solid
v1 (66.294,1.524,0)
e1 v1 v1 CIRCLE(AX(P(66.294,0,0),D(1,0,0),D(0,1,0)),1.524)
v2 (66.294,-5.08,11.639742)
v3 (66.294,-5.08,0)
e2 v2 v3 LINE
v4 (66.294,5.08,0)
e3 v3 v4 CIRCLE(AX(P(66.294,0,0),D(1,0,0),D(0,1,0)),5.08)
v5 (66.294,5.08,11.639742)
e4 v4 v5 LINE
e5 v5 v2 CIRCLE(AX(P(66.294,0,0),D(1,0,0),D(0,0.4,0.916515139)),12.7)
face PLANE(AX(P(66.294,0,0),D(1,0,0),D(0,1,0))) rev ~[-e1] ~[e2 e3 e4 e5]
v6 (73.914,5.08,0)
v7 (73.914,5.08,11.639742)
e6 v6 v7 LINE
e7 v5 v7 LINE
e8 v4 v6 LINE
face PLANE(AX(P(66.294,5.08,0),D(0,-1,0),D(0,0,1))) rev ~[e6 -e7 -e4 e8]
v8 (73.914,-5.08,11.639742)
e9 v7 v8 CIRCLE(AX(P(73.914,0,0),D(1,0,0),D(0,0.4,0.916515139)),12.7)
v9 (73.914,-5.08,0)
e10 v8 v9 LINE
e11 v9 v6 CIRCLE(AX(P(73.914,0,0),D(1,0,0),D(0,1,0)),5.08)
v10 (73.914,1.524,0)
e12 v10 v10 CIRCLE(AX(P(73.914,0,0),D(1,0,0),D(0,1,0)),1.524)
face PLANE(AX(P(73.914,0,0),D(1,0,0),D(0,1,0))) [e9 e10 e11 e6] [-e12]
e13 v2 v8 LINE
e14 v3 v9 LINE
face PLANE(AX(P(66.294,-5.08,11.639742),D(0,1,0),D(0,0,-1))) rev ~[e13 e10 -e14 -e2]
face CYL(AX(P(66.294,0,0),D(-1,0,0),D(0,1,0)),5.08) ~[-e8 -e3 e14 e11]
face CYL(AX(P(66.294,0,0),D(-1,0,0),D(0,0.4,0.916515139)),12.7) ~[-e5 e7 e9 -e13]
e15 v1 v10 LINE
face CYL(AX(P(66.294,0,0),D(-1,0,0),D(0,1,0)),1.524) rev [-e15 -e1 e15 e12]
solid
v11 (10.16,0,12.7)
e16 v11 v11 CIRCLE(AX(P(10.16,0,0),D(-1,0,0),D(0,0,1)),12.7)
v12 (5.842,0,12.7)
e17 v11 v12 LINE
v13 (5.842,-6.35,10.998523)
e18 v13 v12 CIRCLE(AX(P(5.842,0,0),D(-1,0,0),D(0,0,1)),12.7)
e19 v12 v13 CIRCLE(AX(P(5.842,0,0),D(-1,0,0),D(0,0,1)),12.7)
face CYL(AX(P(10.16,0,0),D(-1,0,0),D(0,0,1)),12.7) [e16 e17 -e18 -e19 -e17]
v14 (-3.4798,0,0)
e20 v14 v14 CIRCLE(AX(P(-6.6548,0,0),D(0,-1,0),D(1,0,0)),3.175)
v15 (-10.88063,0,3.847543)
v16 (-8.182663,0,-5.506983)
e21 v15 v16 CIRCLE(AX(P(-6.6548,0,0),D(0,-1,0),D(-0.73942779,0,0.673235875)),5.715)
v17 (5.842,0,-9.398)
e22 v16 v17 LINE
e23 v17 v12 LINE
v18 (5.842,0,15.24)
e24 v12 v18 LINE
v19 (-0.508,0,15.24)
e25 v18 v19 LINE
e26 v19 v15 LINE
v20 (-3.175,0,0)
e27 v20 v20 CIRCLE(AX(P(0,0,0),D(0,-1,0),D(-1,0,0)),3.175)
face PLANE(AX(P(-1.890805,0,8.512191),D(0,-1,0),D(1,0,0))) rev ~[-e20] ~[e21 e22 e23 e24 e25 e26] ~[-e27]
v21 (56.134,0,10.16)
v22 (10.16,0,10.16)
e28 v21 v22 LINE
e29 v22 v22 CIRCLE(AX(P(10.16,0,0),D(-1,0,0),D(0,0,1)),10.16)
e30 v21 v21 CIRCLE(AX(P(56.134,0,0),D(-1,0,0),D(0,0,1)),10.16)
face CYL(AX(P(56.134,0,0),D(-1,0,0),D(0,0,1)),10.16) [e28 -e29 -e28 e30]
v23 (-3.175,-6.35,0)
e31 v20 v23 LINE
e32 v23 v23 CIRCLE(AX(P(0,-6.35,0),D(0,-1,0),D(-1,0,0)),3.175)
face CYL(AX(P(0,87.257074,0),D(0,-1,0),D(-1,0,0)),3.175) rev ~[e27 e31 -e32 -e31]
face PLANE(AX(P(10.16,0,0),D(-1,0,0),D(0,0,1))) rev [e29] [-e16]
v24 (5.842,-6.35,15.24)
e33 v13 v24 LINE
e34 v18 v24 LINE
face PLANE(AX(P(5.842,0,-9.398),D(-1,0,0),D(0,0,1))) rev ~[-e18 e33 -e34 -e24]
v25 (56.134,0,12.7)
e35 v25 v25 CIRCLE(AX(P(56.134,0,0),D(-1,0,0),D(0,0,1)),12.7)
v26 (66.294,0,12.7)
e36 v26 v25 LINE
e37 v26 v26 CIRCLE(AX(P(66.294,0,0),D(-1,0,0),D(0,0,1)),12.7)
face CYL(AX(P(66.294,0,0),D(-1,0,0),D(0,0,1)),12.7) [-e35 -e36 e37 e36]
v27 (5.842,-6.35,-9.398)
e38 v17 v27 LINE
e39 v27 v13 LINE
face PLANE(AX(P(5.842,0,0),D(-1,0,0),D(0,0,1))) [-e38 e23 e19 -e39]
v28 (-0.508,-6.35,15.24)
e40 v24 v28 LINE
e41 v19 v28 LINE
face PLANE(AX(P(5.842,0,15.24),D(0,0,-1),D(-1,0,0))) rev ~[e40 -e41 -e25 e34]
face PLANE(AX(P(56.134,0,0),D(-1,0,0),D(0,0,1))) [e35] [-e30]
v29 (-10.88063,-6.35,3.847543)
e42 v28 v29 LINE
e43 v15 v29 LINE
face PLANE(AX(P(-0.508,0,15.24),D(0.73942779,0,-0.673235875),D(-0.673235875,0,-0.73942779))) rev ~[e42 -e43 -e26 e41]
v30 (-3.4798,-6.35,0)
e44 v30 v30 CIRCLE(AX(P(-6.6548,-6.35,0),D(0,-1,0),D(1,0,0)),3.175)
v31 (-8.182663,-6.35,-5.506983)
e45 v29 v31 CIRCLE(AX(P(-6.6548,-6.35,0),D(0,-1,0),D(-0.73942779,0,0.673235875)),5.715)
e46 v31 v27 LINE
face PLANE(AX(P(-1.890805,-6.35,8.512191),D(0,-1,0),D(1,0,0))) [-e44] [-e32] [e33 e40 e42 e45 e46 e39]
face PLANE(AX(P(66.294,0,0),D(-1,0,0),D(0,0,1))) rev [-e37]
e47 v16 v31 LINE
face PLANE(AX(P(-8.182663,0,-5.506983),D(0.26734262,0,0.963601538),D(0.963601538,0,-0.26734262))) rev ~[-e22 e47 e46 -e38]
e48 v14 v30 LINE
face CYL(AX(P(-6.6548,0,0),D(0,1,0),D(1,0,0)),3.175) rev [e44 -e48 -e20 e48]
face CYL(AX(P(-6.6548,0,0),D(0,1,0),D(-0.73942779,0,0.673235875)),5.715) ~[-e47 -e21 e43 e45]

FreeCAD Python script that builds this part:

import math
import FreeCAD as App
import Part
import Sketcher
Q = App.Units.Quantity


def add_polygon(sketch, points):
    """Adds a closed chain of lines whose ends are joined by coincident constraints."""
    first, n = sketch.GeometryCount, len(points)
    for a, b in zip(points, points[1:] + points[:1]):
        sketch.addGeometry(Part.LineSegment(App.Vector(*a, 0), App.Vector(*b, 0)), False)
    for i in range(n):
        sketch.addConstraint(Sketcher.Constraint("Coincident", first + i, 2, first + (i + 1) % n, 1))

doc = App.newDocument("Part")
params = doc.addObject("Spreadsheet::Sheet", "Params")
for row, (alias, value) in enumerate([
    ("sketch1_width", "0.4 in"),
    ("sketch1_height", "0.5 in"),
    ("sketch1_height2", "0.1 in"),
    ("sketch1_width2", "2.38 in"),
    ("sketch1_width3", "1.81 in"),
    ("revolution_angle", "360 deg"),
    ("sketch2_diameter", "0.25 in"),
    ("sketch2_radius", "0.225 in"),
    ("sketch2_width", "0.25 in"),
    ("sketch2_height", "0.97 in"),
    ("pad1_length", "0.25 in"),
    ("sketch3_diameter", "0.25 in"),
    ("hole_diameter", "0.25 in"),
    ("sketch4_radius", "0.2 in"),
    ("sketch4_radius2", "0.5 in"),
    ("sketch4_diameter", "0.12 in"),
    ("pad2_length", "0.3 in"),
], start=1):
    params.set(f"A{row}", alias)
    params.set(f"B{row}", "=" + value)
    params.setAlias(f"B{row}", alias)

body = doc.addObject("PartDesign::Body", "Body")

sketch1 = doc.addObject("Sketcher::SketchObject", "Sketch")
body.addObject(sketch1)
sketch1.AttachmentSupport = (doc.XZ_Plane, [""])
sketch1.MapMode = "FlatFace"
add_polygon(sketch1, [(5.8, 12.7), (5.8, 0), (66.3, 0), (66.3, 12.7), (56.1, 12.7), (56.1, 10.2), (10.2, 10.2), (10.2, 12.7)])
sketch1.addConstraint([
    Sketcher.Constraint("Vertical", 0),
    Sketcher.Constraint("Horizontal", 1),
    Sketcher.Constraint("Vertical", 2),
    Sketcher.Constraint("Horizontal", 3),
    Sketcher.Constraint("Vertical", 4),
    Sketcher.Constraint("Horizontal", 5),
    Sketcher.Constraint("Vertical", 6),
    Sketcher.Constraint("Horizontal", 7),
    Sketcher.Constraint("PointOnObject", 0, 2, -1),
    Sketcher.Constraint("Horizontal", 3, 2, 6, 2),
    Sketcher.Constraint("DistanceX", 3, 2, 3, 1, Q("0.4 in")),
    Sketcher.Constraint("DistanceY", 0, 2, 0, 1, Q("0.5 in")),
    Sketcher.Constraint("DistanceY", 4, 2, 4, 1, Q("0.1 in")),
    Sketcher.Constraint("DistanceX", 1, 1, 1, 2, Q("2.38 in")),
    Sketcher.Constraint("DistanceX", 5, 2, 5, 1, Q("1.81 in")),
    Sketcher.Constraint("DistanceX", -1, 1, 5, 2, Q("0.4 in")),
])
sketch1.setExpression("Constraints[18]", "Params.sketch1_width")
sketch1.setExpression("Constraints[19]", "Params.sketch1_height")
sketch1.setExpression("Constraints[20]", "Params.sketch1_height2")
sketch1.setExpression("Constraints[21]", "Params.sketch1_width2")
sketch1.setExpression("Constraints[22]", "Params.sketch1_width3")
revolution = doc.addObject("PartDesign::Revolution", "Revolution")
body.addObject(revolution)
revolution.Profile = sketch1
revolution.ReferenceAxis = (sketch1, ["H_Axis"])
revolution.setExpression("Angle", "Params.revolution_angle")

sketch2 = doc.addObject("Sketcher::SketchObject", "Sketch001")
body.addObject(sketch2)
sketch2.AttachmentSupport = (doc.XZ_Plane, [""])
sketch2.MapMode = "FlatFace"
sketch2.addGeometry([
    Part.LineSegment(App.Vector(5.8, -9.4, 0), App.Vector(5.8, 15.2, 0)),
    Part.LineSegment(App.Vector(5.8, 15.2, 0), App.Vector(-0.5, 15.2, 0)),
    Part.LineSegment(App.Vector(-0.5, 15.2, 0), App.Vector(-10.9, 3.8, 0)),
    Part.ArcOfCircle(Part.Circle(App.Vector(-6.7, 0, 0), App.Vector(0, 0, 1), 5.7), math.radians(138), math.radians(254)),
    Part.LineSegment(App.Vector(-8.2, -5.5, 0), App.Vector(5.8, -9.4, 0)),
    Part.Circle(App.Vector(-6.7, 0, 0), App.Vector(0, 0, 1), 3.2),
], False)
sketch2.addConstraint([
    Sketcher.Constraint("Coincident", 0, 2, 1, 1),
    Sketcher.Constraint("Coincident", 1, 2, 2, 1),
    Sketcher.Constraint("Tangent", 2, 2, 3, 1),
    Sketcher.Constraint("Tangent", 3, 2, 4, 1),
    Sketcher.Constraint("Coincident", 4, 2, 0, 1),
    Sketcher.Constraint("Vertical", 0),
    Sketcher.Constraint("Horizontal", 1),
    Sketcher.Constraint("Coincident", 5, 3, 3, 3),
    Sketcher.Constraint("PointOnObject", 3, 3, -1),
    Sketcher.Constraint("Diameter", 5, Q("0.25 in")),
    Sketcher.Constraint("Radius", 3, Q("0.225 in")),
    Sketcher.Constraint("DistanceX", 1, 2, 1, 1, Q("0.25 in")),
    Sketcher.Constraint("DistanceY", 0, 1, 0, 2, Q("0.97 in")),
    Sketcher.Constraint("DistanceY", -1, 1, 0, 2, Q("0.6 in")),
    Sketcher.Constraint("DistanceX", -1, 1, 0, 2, Q("0.23 in")),
    Sketcher.Constraint("DistanceX", 3, 3, -1, 1, Q("0.262 in")),
])
sketch2.setExpression("Constraints[9]", "Params.sketch2_diameter")
sketch2.setExpression("Constraints[10]", "Params.sketch2_radius")
sketch2.setExpression("Constraints[11]", "Params.sketch2_width")
sketch2.setExpression("Constraints[12]", "Params.sketch2_height")
pad1 = doc.addObject("PartDesign::Pad", "Pad")
body.addObject(pad1)
pad1.Profile = sketch2
pad1.setExpression("Length", "Params.pad1_length")

sketch3 = doc.addObject("Sketcher::SketchObject", "Sketch002")
body.addObject(sketch3)
sketch3.AttachmentSupport = (doc.XZ_Plane, [""])
sketch3.MapMode = "FlatFace"
sketch3.addGeometry(Part.Circle(App.Vector(0, 0, 0), App.Vector(0, 0, 1), 3.2), False)
sketch3.addConstraint([
    Sketcher.Constraint("Coincident", 0, 3, -1, 1),
    Sketcher.Constraint("Diameter", 0, Q("0.25 in")),
])
sketch3.setExpression("Constraints[1]", "Params.sketch3_diameter")
doc.recompute()
hole = doc.addObject("PartDesign::Hole", "Hole")
body.addObject(hole)
hole.Profile = sketch3
hole.ThreadType = "None"
hole.setExpression("Diameter", "Params.hole_diameter")
hole.DepthType = "ThroughAll"
hole.Reversed = True
body2 = doc.addObject("PartDesign::Body", "Body001")

sketch4 = doc.addObject("Sketcher::SketchObject", "Sketch003")
body2.addObject(sketch4)
sketch4.AttachmentSupport = (doc.getObject("YZ_Plane001"), [""])
sketch4.MapMode = "FlatFace"
sketch4.AttachmentOffset = App.Placement(App.Vector(0, 0, 2.61 * 25.4), App.Rotation())
sketch4.addGeometry([
    Part.ArcOfCircle(Part.Circle(App.Vector(0, 0, 0), App.Vector(0, 0, 1), 5.1), math.radians(180), math.radians(360)),
    Part.LineSegment(App.Vector(5.1, 0, 0), App.Vector(5.1, 11.6, 0)),
    Part.ArcOfCircle(Part.Circle(App.Vector(0, 0, 0), App.Vector(0, 0, 1), 12.7), math.radians(66), math.radians(114)),
    Part.LineSegment(App.Vector(-5.1, 11.6, 0), App.Vector(-5.1, 0, 0)),
    Part.Circle(App.Vector(0, 0, 0), App.Vector(0, 0, 1), 1.5),
], False)
sketch4.addConstraint([
    Sketcher.Constraint("Tangent", 0, 2, 1, 1),
    Sketcher.Constraint("Coincident", 1, 2, 2, 1),
    Sketcher.Constraint("Coincident", 2, 2, 3, 1),
    Sketcher.Constraint("Tangent", 3, 2, 0, 1),
    Sketcher.Constraint("Vertical", 1),
    Sketcher.Constraint("Vertical", 3),
    Sketcher.Constraint("Coincident", 0, 3, -1, 1),
    Sketcher.Constraint("Coincident", 2, 3, -1, 1),
    Sketcher.Constraint("Coincident", 4, 3, -1, 1),
    Sketcher.Constraint("Radius", 0, Q("0.2 in")),
    Sketcher.Constraint("Radius", 2, Q("0.5 in")),
    Sketcher.Constraint("Diameter", 4, Q("0.12 in")),
])
sketch4.setExpression("Constraints[9]", "Params.sketch4_radius")
sketch4.setExpression("Constraints[10]", "Params.sketch4_radius2")
sketch4.setExpression("Constraints[11]", "Params.sketch4_diameter")
pad2 = doc.addObject("PartDesign::Pad", "Pad001")
body2.addObject(pad2)
pad2.Profile = sketch4
pad2.setExpression("Length", "Params.pad2_length")

doc.recompute()
